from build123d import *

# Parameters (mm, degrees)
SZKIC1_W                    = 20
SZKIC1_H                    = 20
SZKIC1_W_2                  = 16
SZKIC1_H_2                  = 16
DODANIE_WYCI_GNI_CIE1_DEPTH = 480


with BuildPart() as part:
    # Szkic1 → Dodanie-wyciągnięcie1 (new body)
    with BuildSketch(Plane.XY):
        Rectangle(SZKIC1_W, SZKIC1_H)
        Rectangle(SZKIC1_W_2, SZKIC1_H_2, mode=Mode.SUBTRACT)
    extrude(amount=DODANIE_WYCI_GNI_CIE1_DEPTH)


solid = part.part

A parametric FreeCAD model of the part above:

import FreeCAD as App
import Part
import Sketcher

V = App.Vector
Q = App.Units.Quantity

doc = App.newDocument("Part")
body = doc.addObject("PartDesign::Body", "Body")

sketch1 = body.newObject("Sketcher::SketchObject", "Sketch")
sketch1.AttachmentSupport = (doc.getObject("XY_Plane"), [""])
sketch1.MapMode = "FlatFace"
sketch1.addGeometry([
    Part.LineSegment(V(-10, 10, 0), V(-10, -10, 0)),
    Part.LineSegment(V(-10, -10, 0), V(10, -10, 0)),
    Part.LineSegment(V(10, -10, 0), V(10, 10, 0)),
    Part.LineSegment(V(10, 10, 0), V(-10, 10, 0)),
    Part.LineSegment(V(8, -8, 0), V(-8, -8, 0)),
    Part.LineSegment(V(-8, -8, 0), V(-8, 8, 0)),
    Part.LineSegment(V(-8, 8, 0), V(8, 8, 0)),
    Part.LineSegment(V(8, 8, 0), V(8, -8, 0)),
], False)
sketch1.addConstraint([
    Sketcher.Constraint("Coincident", 0, 2, 1, 1),
    Sketcher.Constraint("Coincident", 1, 2, 2, 1),
    Sketcher.Constraint("Coincident", 2, 2, 3, 1),
    Sketcher.Constraint("Coincident", 3, 2, 0, 1),
    Sketcher.Constraint("Coincident", 4, 2, 5, 1),
    Sketcher.Constraint("Coincident", 5, 2, 6, 1),
    Sketcher.Constraint("Coincident", 6, 2, 7, 1),
    Sketcher.Constraint("Coincident", 7, 2, 4, 1),
    Sketcher.Constraint("Vertical", 0),
    Sketcher.Constraint("Horizontal", 1),
    Sketcher.Constraint("Vertical", 2),
    Sketcher.Constraint("Horizontal", 3),
    Sketcher.Constraint("Horizontal", 4),
    Sketcher.Constraint("Vertical", 5),
    Sketcher.Constraint("Horizontal", 6),
    Sketcher.Constraint("Vertical", 7),
    Sketcher.Constraint("Symmetric", 0, 2, 2, 2, -1, 1),
    Sketcher.Constraint("Symmetric", 4, 2, 6, 2, -1, 1),
    Sketcher.Constraint("Equal", 3, 0),
    Sketcher.Constraint("Equal", 6, 5),
    Sketcher.Constraint("DistanceX", 1, 1, 1, 2, Q("20 mm")),
    Sketcher.Constraint("DistanceX", 4, 2, 4, 1, Q("16 mm")),
])
pad1 = body.newObject("PartDesign::Pad", "Pad")
pad1.Profile = sketch1
pad1.Length = 480

doc.recompute()
